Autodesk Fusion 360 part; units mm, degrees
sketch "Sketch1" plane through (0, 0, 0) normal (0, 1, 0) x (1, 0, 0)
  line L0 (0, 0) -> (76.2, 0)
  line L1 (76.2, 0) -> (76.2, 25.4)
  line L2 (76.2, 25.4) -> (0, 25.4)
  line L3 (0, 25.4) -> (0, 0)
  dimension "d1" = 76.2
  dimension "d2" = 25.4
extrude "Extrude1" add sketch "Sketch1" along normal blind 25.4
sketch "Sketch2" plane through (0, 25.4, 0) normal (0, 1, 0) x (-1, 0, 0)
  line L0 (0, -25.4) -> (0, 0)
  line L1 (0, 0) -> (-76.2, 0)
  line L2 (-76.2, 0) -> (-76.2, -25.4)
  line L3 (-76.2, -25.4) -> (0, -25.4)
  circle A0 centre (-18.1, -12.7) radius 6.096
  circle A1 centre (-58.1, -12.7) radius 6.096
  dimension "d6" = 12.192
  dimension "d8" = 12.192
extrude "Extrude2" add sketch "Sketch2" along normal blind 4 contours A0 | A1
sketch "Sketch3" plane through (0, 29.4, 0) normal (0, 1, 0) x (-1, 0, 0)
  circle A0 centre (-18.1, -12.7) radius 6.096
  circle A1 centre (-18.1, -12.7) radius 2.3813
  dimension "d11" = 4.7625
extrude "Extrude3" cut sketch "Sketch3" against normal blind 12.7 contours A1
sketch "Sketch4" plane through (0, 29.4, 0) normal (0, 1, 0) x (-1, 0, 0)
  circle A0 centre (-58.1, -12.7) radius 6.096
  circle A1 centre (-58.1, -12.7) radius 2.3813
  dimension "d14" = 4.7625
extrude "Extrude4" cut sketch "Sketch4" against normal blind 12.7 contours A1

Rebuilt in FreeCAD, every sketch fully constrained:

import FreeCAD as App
import Part
import Sketcher
Q = App.Units.Quantity


def add_polygon(sketch, points):
    """Adds a closed chain of lines whose ends are joined by coincident constraints."""
    first, n = sketch.GeometryCount, len(points)
    for a, b in zip(points, points[1:] + points[:1]):
        sketch.addGeometry(Part.LineSegment(App.Vector(*a, 0), App.Vector(*b, 0)), False)
    for i in range(n):
        sketch.addConstraint(Sketcher.Constraint("Coincident", first + i, 2, first + (i + 1) % n, 1))

doc = App.newDocument("Part")
params = doc.addObject("Spreadsheet::Sheet", "Params")
for row, (alias, value) in enumerate([
    ("sketch1_width", "3 in"),
    ("sketch1_height", "1 in"),
    ("pad1_length", "1 in"),
    ("sketch2_diameter", "0.48 in"),
    ("pad2_length", "4 mm"),
    ("sketch3_diameter", "0.1875 in"),
    ("pocket1_length", "0.5 in"),
    ("sketch4_diameter", "0.1875 in"),
    ("pocket2_length", "0.5 in"),
], start=1):
    params.set(f"A{row}", alias)
    params.set(f"B{row}", "=" + value)
    params.setAlias(f"B{row}", alias)

body = doc.addObject("PartDesign::Body", "Body")

# Sketch on XZ plane
sketch1 = body.newObject("Sketcher::SketchObject", "Sketch")
sketch1.AttachmentSupport = (doc.getObject("XZ_Plane"), [""])
sketch1.MapMode = "FlatFace"
add_polygon(sketch1, [(0, -25), (0, 0), (76, 0), (76, -25)])  # lines 0-3
sketch1.addConstraint([
    Sketcher.Constraint("Vertical", 0),
    Sketcher.Constraint("Horizontal", 1),
    Sketcher.Constraint("Vertical", 2),
    Sketcher.Constraint("Horizontal", 3),
    Sketcher.Constraint("Coincident", 0, 2, -1, 1),
    Sketcher.Constraint("DistanceX", 1, 1, 1, 2, Q("3 in")),
    Sketcher.Constraint("DistanceY", 0, 1, 0, 2, Q("1 in")),
])
sketch1.setExpression("Constraints[9]", "Params.sketch1_width")
sketch1.setExpression("Constraints[10]", "Params.sketch1_height")
pad1 = body.newObject("PartDesign::Pad", "Pad")
pad1.Profile = sketch1
pad1.setExpression("Length", "Params.pad1_length")
pad1.Reversed = True

# Sketch on XZ plane
sketch2 = body.newObject("Sketcher::SketchObject", "Sketch001")
sketch2.AttachmentSupport = (doc.getObject("XZ_Plane"), [""])
sketch2.MapMode = "FlatFace"
sketch2.AttachmentOffset = App.Placement(App.Vector(0, 0, -1 * 25.4), App.Rotation())
sketch2.addGeometry([
    Part.Circle(App.Vector(18, -13, 0), App.Vector(0, 0, 1), 6),
    Part.Circle(App.Vector(58, -13, 0), App.Vector(0, 0, 1), 6),
], False)
sketch2.addConstraint([
    Sketcher.Constraint("Equal", 0, 1),
    Sketcher.Constraint("Horizontal", 0, 3, 1, 3),
    Sketcher.Constraint("Diameter", 0, Q("0.48 in")),
    Sketcher.Constraint("DistanceY", 0, 3, -1, 1, Q("0.5 in")),
    Sketcher.Constraint("DistanceX", -1, 1, 0, 3, Q("0.7126 in")),
    Sketcher.Constraint("DistanceX", -1, 1, 1, 3, Q("2.2874 in")),
])
sketch2.setExpression("Constraints[2]", "Params.sketch2_diameter")
pad2 = body.newObject("PartDesign::Pad", "Pad001")
pad2.Profile = sketch2
pad2.setExpression("Length", "Params.pad2_length")
pad2.Reversed = True

# Sketch on XZ plane
sketch3 = body.newObject("Sketcher::SketchObject", "Sketch002")
sketch3.AttachmentSupport = (doc.getObject("XZ_Plane"), [""])
sketch3.MapMode = "FlatFace"
sketch3.AttachmentOffset = App.Placement(App.Vector(0, 0, -29.4), App.Rotation())
sketch3.addGeometry(Part.Circle(App.Vector(18.1, -12.7, 0), App.Vector(0, 0, 1), 2.4), False)
sketch3.addConstraint([
    Sketcher.Constraint("Diameter", 0, Q("0.1875 in")),
    Sketcher.Constraint("DistanceY", 0, 3, -1, 1, Q("0.5 in")),
    Sketcher.Constraint("DistanceX", -1, 1, 0, 3, Q("0.7126 in")),
])
sketch3.setExpression("Constraints[0]", "Params.sketch3_diameter")
pocket1 = body.newObject("PartDesign::Pocket", "Pocket")
pocket1.Profile = sketch3
pocket1.setExpression("Length", "Params.pocket1_length")
pocket1.Reversed = True

# Sketch on XZ plane
sketch4 = body.newObject("Sketcher::SketchObject", "Sketch003")
sketch4.AttachmentSupport = (doc.getObject("XZ_Plane"), [""])
sketch4.MapMode = "FlatFace"
sketch4.AttachmentOffset = App.Placement(App.Vector(0, 0, -29.4), App.Rotation())
sketch4.addGeometry(Part.Circle(App.Vector(58.1, -12.7, 0), App.Vector(0, 0, 1), 2.4), False)
sketch4.addConstraint([
    Sketcher.Constraint("Diameter", 0, Q("0.1875 in")),
    Sketcher.Constraint("DistanceY", 0, 3, -1, 1, Q("0.5 in")),
    Sketcher.Constraint("DistanceX", -1, 1, 0, 3, Q("2.2874 in")),
])
sketch4.setExpression("Constraints[0]", "Params.sketch4_diameter")
pocket2 = body.newObject("PartDesign::Pocket", "Pocket001")
pocket2.Profile = sketch4
pocket2.setExpression("Length", "Params.pocket2_length")
pocket2.Reversed = True

doc.recompute()
